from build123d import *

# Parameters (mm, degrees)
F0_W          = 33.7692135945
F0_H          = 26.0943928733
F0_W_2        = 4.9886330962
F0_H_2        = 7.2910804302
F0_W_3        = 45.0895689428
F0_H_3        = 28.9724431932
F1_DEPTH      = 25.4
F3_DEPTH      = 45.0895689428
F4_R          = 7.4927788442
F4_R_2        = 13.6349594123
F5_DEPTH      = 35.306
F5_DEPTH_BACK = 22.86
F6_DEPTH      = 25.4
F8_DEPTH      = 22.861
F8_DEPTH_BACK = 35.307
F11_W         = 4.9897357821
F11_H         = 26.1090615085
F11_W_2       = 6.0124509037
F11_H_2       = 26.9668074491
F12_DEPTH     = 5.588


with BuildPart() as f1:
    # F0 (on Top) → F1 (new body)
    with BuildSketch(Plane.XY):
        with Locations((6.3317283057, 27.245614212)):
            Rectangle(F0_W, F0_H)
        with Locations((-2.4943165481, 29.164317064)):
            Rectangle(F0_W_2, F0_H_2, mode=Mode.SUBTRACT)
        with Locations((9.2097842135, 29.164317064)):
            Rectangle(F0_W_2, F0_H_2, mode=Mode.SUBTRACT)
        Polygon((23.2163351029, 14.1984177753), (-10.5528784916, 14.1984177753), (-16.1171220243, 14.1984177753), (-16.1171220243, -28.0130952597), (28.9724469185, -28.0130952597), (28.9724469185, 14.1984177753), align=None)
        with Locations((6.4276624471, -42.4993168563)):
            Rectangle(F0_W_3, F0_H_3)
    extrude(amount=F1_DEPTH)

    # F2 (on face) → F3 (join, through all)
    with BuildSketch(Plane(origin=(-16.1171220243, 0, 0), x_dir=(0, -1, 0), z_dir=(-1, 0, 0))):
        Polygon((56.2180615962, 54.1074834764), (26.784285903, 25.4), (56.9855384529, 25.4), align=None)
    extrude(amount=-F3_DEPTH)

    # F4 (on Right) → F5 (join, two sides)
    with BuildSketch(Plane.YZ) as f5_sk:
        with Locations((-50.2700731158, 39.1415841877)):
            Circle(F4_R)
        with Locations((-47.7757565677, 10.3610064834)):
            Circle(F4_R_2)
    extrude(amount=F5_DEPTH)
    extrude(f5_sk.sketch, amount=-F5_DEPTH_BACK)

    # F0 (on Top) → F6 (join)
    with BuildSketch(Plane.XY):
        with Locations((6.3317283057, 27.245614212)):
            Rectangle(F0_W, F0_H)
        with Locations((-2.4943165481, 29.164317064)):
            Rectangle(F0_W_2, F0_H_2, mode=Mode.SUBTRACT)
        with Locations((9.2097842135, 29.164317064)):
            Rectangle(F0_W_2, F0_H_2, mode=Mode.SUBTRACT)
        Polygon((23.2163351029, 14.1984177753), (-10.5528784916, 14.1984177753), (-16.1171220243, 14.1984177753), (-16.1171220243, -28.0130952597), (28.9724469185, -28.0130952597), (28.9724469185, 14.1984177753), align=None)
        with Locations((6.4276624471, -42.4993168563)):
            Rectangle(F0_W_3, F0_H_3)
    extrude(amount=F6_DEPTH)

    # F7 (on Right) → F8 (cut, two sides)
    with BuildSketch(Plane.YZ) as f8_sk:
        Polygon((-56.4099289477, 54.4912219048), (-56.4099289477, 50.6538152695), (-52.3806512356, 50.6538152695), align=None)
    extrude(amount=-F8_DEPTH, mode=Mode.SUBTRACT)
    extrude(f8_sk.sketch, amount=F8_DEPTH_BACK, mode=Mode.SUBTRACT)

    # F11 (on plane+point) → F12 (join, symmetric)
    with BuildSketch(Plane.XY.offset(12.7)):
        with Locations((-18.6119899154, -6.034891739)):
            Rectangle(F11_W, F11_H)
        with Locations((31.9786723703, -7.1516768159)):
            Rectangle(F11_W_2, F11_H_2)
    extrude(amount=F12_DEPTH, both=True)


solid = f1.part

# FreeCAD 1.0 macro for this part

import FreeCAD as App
import Part
import Sketcher
from FreeCAD import Vector
Q = App.Units.Quantity


def add_polygon(sketch, points):
    """Adds a closed chain of lines whose ends are joined by coincident constraints."""
    first, n = sketch.GeometryCount, len(points)
    for a, b in zip(points, points[1:] + points[:1]):
        sketch.addGeometry(Part.LineSegment(App.Vector(*a, 0), App.Vector(*b, 0)), False)
    for i in range(n):
        sketch.addConstraint(Sketcher.Constraint("Coincident", first + i, 2, first + (i + 1) % n, 1))

doc = App.newDocument("Part")
body = doc.addObject("PartDesign::Body", "Body")

# Sketch on XY plane
sketch1 = body.newObject("Sketcher::SketchObject", "Sketch")
sketch1.AttachmentSupport = (doc.getObject("XY_Plane"), [""])
sketch1.MapMode = "FlatFace"
add_polygon(sketch1, [(-10.6, 40.3), (-10.6, 14.2), (-16.1, 14.2), (-16.1, -57), (29, -57), (29, 14.2), (23.2, 14.2), (23.2, 40.3)])  # lines 0-7
add_polygon(sketch1, [(0, 25.5), (-5, 25.5), (-5, 32.8), (0, 32.8)])  # lines 8-11
add_polygon(sketch1, [(11.7, 25.5), (6.7, 25.5), (6.7, 32.8), (11.7, 32.8)])  # lines 12-15
sketch1.addConstraint([
    Sketcher.Constraint("Vertical", 0),
    Sketcher.Constraint("Horizontal", 1),
    Sketcher.Constraint("Vertical", 2),
    Sketcher.Constraint("Horizontal", 3),
    Sketcher.Constraint("Vertical", 4),
    Sketcher.Constraint("Horizontal", 5),
    Sketcher.Constraint("Vertical", 6),
    Sketcher.Constraint("Horizontal", 7),
    Sketcher.Constraint("Horizontal", 8),
    Sketcher.Constraint("Vertical", 9),
    Sketcher.Constraint("Horizontal", 10),
    Sketcher.Constraint("Vertical", 11),
    Sketcher.Constraint("Horizontal", 12),
    Sketcher.Constraint("Vertical", 13),
    Sketcher.Constraint("Horizontal", 14),
    Sketcher.Constraint("Vertical", 15),
    Sketcher.Constraint("PointOnObject", 10, 2, -2),
    Sketcher.Constraint("Horizontal", 1, 2, 4, 2),
    Sketcher.Constraint("Horizontal", 11, 2, 12, 2),
    Sketcher.Constraint("Horizontal", 10, 2, 13, 2),
    Sketcher.Constraint("Equal", 10, 12),
    Sketcher.Constraint("DistanceX", 3, 1, 3, 2, Q("45.089569 mm")),
    Sketcher.Constraint("DistanceX", 5, 2, 5, 1, Q("5.756112 mm")),
    Sketcher.Constraint("DistanceY", 9, 1, 9, 2, Q("7.29108 mm")),
    Sketcher.Constraint("DistanceX", -1, 1, 14, 2, Q("11.704101 mm")),
    Sketcher.Constraint("DistanceX", 1, 2, 1, 1, Q("5.564244 mm")),
    Sketcher.Constraint("DistanceX", 8, 2, 8, 1, Q("4.988633 mm")),
    Sketcher.Constraint("DistanceY", 0, 2, 0, 1, Q("26.094393 mm")),
    Sketcher.Constraint("DistanceY", 2, 2, 2, 1, Q("71.183956 mm")),
    Sketcher.Constraint("DistanceX", 0, 2, -1, 1, Q("10.552878 mm")),
    Sketcher.Constraint("DistanceY", 2, 2, -1, 1, Q("56.985538 mm")),
    Sketcher.Constraint("DistanceY", 0, 2, 8, 2, Q("11.320359 mm")),
])
pad1 = body.newObject("PartDesign::Pad", "Pad")
pad1.Profile = sketch1
pad1.Length = Q("1 in")

# Sketch on YZ plane
sketch2 = body.newObject("Sketcher::SketchObject", "Sketch001")
sketch2.AttachmentSupport = (doc.getObject("YZ_Plane"), [""])
sketch2.MapMode = "FlatFace"
sketch2.AttachmentOffset = App.Placement(Vector(0, 0, -16.117122), App.Rotation())
add_polygon(sketch2, [(-56, 54), (-27, 25), (-57, 25)])  # lines 0-2
sketch2.addConstraint([
    Sketcher.Constraint("Horizontal", 1),
    Sketcher.Constraint("DistanceY", -1, 1, 0, 2, Q("1 in")),
    Sketcher.Constraint("Distance", 2, Q("28.717741 mm")),
    Sketcher.Constraint("DistanceX", 1, 2, 1, 1, Q("30.201253 mm")),
    Sketcher.Constraint("DistanceX", 1, 2, -1, 1, Q("56.985538 mm")),
    Sketcher.Constraint("DistanceX", 2, 2, -1, 1, Q("56.218062 mm")),
])
pad2 = body.newObject("PartDesign::Pad", "Pad001")
pad2.Profile = sketch2
pad2.Length = 45.089569

# Sketch on YZ plane
sketch3 = body.newObject("Sketcher::SketchObject", "Sketch002")
sketch3.AttachmentSupport = (doc.getObject("YZ_Plane"), [""])
sketch3.MapMode = "FlatFace"
sketch3.addGeometry([
    Part.Circle(Vector(-50, 39, 0), Vector(0, 0, 1), 7),
    Part.Circle(Vector(-48, 10, 0), Vector(0, 0, 1), 14),
], False)
sketch3.addConstraint([
    Sketcher.Constraint("Diameter", 1, Q("27.269919 mm")),
    Sketcher.Constraint("Diameter", 0, Q("14.985558 mm")),
    Sketcher.Constraint("DistanceX", 0, 3, -1, 1, Q("50.270073 mm")),
    Sketcher.Constraint("DistanceY", -1, 1, 0, 3, Q("39.141584 mm")),
    Sketcher.Constraint("DistanceX", 1, 3, -1, 1, Q("47.775757 mm")),
    Sketcher.Constraint("DistanceY", -1, 1, 1, 3, Q("10.361006 mm")),
])
pad3 = body.newObject("PartDesign::Pad", "Pad002")
pad3.Profile = sketch3
pad3.Type = "TwoLengths"
pad3.Length = Q("1.39 in")
pad3.Length2 = Q("0.9 in")

# Sketch on XY plane
sketch4 = body.newObject("Sketcher::SketchObject", "Sketch003")
sketch4.AttachmentSupport = (doc.getObject("XY_Plane"), [""])
sketch4.MapMode = "FlatFace"
add_polygon(sketch4, [(-10.6, 40.3), (-10.6, 14.2), (-16.1, 14.2), (-16.1, -57), (29, -57), (29, 14.2), (23.2, 14.2), (23.2, 40.3)])  # lines 0-7
add_polygon(sketch4, [(0, 25.5), (-5, 25.5), (-5, 32.8), (0, 32.8)])  # lines 8-11
add_polygon(sketch4, [(11.7, 25.5), (6.7, 25.5), (6.7, 32.8), (11.7, 32.8)])  # lines 12-15
sketch4.addConstraint([
    Sketcher.Constraint("Vertical", 0),
    Sketcher.Constraint("Horizontal", 1),
    Sketcher.Constraint("Vertical", 2),
    Sketcher.Constraint("Horizontal", 3),
    Sketcher.Constraint("Vertical", 4),
    Sketcher.Constraint("Horizontal", 5),
    Sketcher.Constraint("Vertical", 6),
    Sketcher.Constraint("Horizontal", 7),
    Sketcher.Constraint("Horizontal", 8),
    Sketcher.Constraint("Vertical", 9),
    Sketcher.Constraint("Horizontal", 10),
    Sketcher.Constraint("Vertical", 11),
    Sketcher.Constraint("Horizontal", 12),
    Sketcher.Constraint("Vertical", 13),
    Sketcher.Constraint("Horizontal", 14),
    Sketcher.Constraint("Vertical", 15),
    Sketcher.Constraint("PointOnObject", 10, 2, -2),
    Sketcher.Constraint("Horizontal", 1, 2, 4, 2),
    Sketcher.Constraint("Horizontal", 11, 2, 12, 2),
    Sketcher.Constraint("Horizontal", 10, 2, 13, 2),
    Sketcher.Constraint("Equal", 10, 12),
    Sketcher.Constraint("DistanceX", 3, 1, 3, 2, Q("45.089569 mm")),
    Sketcher.Constraint("DistanceX", 5, 2, 5, 1, Q("5.756112 mm")),
    Sketcher.Constraint("DistanceY", 9, 1, 9, 2, Q("7.29108 mm")),
    Sketcher.Constraint("DistanceX", -1, 1, 14, 2, Q("11.704101 mm")),
    Sketcher.Constraint("DistanceX", 1, 2, 1, 1, Q("5.564244 mm")),
    Sketcher.Constraint("DistanceX", 8, 2, 8, 1, Q("4.988633 mm")),
    Sketcher.Constraint("DistanceY", 0, 2, 0, 1, Q("26.094393 mm")),
    Sketcher.Constraint("DistanceY", 2, 2, 2, 1, Q("71.183956 mm")),
    Sketcher.Constraint("DistanceX", 0, 2, -1, 1, Q("10.552878 mm")),
    Sketcher.Constraint("DistanceY", 2, 2, -1, 1, Q("56.985538 mm")),
    Sketcher.Constraint("DistanceY", 0, 2, 8, 2, Q("11.320359 mm")),
])
pad4 = body.newObject("PartDesign::Pad", "Pad003")
pad4.Profile = sketch4
pad4.Length = Q("1 in")

# Sketch on YZ plane
sketch5 = body.newObject("Sketcher::SketchObject", "Sketch004")
sketch5.AttachmentSupport = (doc.getObject("YZ_Plane"), [""])
sketch5.MapMode = "FlatFace"
add_polygon(sketch5, [(-56.4, 54.5), (-56.4, 50.7), (-52.4, 50.7)])  # lines 0-2
sketch5.addConstraint([
    Sketcher.Constraint("Vertical", 0),
    Sketcher.Constraint("Horizontal", 1),
    Sketcher.Constraint("Distance", 2, Q("5.56424 mm")),
    Sketcher.Constraint("DistanceX", 1, 1, 1, 2, Q("4.029278 mm")),
    Sketcher.Constraint("DistanceX", 0, 2, -1, 1, Q("56.409929 mm")),
    Sketcher.Constraint("DistanceY", -1, 1, 2, 2, Q("54.491222 mm")),
])
pocket1 = body.newObject("PartDesign::Pocket", "Pocket")
pocket1.Profile = sketch5
pocket1.Type = "ThroughAll"
pocket1.Midplane = True

# Sketch on XY plane
sketch6 = body.newObject("Sketcher::SketchObject", "Sketch005")
sketch6.AttachmentSupport = (doc.getObject("XY_Plane"), [""])
sketch6.MapMode = "FlatFace"
sketch6.AttachmentOffset = App.Placement(Vector(0, 0, 0.5 * 25.4), App.Rotation())
add_polygon(sketch6, [(-21.1, 7), (-21.1, -19.1), (-16.1, -19.1), (-16.1, 7)])  # lines 0-3
add_polygon(sketch6, [(29, 6.3), (29, -20.6), (35, -20.6), (35, 6.3)])  # lines 4-7
sketch6.addConstraint([
    Sketcher.Constraint("Vertical", 0),
    Sketcher.Constraint("Horizontal", 1),
    Sketcher.Constraint("Vertical", 2),
    Sketcher.Constraint("Horizontal", 3),
    Sketcher.Constraint("Vertical", 4),
    Sketcher.Constraint("Horizontal", 5),
    Sketcher.Constraint("Vertical", 6),
    Sketcher.Constraint("Horizontal", 7),
    Sketcher.Constraint("DistanceX", 5, 1, 5, 2, Q("6.012451 mm")),
    Sketcher.Constraint("DistanceY", 0, 2, 0, 1, Q("26.109062 mm")),
    Sketcher.Constraint("DistanceX", 1, 1, 1, 2, Q("4.989736 mm")),
    Sketcher.Constraint("DistanceY", 4, 2, 4, 1, Q("26.966807 mm")),
    Sketcher.Constraint("DistanceY", -1, 1, 2, 2, Q("7.019639 mm")),
    Sketcher.Constraint("DistanceY", 4, 2, -1, 1, Q("20.635081 mm")),
    Sketcher.Constraint("DistanceX", 1, 2, 4, 2, Q("45.089569 mm")),
    Sketcher.Constraint("DistanceX", 0, 2, -1, 1, Q("21.106858 mm")),
])
pad5 = body.newObject("PartDesign::Pad", "Pad004")
pad5.Profile = sketch6
pad5.Length = Q("0.44 in")
pad5.Midplane = True

doc.recompute()
